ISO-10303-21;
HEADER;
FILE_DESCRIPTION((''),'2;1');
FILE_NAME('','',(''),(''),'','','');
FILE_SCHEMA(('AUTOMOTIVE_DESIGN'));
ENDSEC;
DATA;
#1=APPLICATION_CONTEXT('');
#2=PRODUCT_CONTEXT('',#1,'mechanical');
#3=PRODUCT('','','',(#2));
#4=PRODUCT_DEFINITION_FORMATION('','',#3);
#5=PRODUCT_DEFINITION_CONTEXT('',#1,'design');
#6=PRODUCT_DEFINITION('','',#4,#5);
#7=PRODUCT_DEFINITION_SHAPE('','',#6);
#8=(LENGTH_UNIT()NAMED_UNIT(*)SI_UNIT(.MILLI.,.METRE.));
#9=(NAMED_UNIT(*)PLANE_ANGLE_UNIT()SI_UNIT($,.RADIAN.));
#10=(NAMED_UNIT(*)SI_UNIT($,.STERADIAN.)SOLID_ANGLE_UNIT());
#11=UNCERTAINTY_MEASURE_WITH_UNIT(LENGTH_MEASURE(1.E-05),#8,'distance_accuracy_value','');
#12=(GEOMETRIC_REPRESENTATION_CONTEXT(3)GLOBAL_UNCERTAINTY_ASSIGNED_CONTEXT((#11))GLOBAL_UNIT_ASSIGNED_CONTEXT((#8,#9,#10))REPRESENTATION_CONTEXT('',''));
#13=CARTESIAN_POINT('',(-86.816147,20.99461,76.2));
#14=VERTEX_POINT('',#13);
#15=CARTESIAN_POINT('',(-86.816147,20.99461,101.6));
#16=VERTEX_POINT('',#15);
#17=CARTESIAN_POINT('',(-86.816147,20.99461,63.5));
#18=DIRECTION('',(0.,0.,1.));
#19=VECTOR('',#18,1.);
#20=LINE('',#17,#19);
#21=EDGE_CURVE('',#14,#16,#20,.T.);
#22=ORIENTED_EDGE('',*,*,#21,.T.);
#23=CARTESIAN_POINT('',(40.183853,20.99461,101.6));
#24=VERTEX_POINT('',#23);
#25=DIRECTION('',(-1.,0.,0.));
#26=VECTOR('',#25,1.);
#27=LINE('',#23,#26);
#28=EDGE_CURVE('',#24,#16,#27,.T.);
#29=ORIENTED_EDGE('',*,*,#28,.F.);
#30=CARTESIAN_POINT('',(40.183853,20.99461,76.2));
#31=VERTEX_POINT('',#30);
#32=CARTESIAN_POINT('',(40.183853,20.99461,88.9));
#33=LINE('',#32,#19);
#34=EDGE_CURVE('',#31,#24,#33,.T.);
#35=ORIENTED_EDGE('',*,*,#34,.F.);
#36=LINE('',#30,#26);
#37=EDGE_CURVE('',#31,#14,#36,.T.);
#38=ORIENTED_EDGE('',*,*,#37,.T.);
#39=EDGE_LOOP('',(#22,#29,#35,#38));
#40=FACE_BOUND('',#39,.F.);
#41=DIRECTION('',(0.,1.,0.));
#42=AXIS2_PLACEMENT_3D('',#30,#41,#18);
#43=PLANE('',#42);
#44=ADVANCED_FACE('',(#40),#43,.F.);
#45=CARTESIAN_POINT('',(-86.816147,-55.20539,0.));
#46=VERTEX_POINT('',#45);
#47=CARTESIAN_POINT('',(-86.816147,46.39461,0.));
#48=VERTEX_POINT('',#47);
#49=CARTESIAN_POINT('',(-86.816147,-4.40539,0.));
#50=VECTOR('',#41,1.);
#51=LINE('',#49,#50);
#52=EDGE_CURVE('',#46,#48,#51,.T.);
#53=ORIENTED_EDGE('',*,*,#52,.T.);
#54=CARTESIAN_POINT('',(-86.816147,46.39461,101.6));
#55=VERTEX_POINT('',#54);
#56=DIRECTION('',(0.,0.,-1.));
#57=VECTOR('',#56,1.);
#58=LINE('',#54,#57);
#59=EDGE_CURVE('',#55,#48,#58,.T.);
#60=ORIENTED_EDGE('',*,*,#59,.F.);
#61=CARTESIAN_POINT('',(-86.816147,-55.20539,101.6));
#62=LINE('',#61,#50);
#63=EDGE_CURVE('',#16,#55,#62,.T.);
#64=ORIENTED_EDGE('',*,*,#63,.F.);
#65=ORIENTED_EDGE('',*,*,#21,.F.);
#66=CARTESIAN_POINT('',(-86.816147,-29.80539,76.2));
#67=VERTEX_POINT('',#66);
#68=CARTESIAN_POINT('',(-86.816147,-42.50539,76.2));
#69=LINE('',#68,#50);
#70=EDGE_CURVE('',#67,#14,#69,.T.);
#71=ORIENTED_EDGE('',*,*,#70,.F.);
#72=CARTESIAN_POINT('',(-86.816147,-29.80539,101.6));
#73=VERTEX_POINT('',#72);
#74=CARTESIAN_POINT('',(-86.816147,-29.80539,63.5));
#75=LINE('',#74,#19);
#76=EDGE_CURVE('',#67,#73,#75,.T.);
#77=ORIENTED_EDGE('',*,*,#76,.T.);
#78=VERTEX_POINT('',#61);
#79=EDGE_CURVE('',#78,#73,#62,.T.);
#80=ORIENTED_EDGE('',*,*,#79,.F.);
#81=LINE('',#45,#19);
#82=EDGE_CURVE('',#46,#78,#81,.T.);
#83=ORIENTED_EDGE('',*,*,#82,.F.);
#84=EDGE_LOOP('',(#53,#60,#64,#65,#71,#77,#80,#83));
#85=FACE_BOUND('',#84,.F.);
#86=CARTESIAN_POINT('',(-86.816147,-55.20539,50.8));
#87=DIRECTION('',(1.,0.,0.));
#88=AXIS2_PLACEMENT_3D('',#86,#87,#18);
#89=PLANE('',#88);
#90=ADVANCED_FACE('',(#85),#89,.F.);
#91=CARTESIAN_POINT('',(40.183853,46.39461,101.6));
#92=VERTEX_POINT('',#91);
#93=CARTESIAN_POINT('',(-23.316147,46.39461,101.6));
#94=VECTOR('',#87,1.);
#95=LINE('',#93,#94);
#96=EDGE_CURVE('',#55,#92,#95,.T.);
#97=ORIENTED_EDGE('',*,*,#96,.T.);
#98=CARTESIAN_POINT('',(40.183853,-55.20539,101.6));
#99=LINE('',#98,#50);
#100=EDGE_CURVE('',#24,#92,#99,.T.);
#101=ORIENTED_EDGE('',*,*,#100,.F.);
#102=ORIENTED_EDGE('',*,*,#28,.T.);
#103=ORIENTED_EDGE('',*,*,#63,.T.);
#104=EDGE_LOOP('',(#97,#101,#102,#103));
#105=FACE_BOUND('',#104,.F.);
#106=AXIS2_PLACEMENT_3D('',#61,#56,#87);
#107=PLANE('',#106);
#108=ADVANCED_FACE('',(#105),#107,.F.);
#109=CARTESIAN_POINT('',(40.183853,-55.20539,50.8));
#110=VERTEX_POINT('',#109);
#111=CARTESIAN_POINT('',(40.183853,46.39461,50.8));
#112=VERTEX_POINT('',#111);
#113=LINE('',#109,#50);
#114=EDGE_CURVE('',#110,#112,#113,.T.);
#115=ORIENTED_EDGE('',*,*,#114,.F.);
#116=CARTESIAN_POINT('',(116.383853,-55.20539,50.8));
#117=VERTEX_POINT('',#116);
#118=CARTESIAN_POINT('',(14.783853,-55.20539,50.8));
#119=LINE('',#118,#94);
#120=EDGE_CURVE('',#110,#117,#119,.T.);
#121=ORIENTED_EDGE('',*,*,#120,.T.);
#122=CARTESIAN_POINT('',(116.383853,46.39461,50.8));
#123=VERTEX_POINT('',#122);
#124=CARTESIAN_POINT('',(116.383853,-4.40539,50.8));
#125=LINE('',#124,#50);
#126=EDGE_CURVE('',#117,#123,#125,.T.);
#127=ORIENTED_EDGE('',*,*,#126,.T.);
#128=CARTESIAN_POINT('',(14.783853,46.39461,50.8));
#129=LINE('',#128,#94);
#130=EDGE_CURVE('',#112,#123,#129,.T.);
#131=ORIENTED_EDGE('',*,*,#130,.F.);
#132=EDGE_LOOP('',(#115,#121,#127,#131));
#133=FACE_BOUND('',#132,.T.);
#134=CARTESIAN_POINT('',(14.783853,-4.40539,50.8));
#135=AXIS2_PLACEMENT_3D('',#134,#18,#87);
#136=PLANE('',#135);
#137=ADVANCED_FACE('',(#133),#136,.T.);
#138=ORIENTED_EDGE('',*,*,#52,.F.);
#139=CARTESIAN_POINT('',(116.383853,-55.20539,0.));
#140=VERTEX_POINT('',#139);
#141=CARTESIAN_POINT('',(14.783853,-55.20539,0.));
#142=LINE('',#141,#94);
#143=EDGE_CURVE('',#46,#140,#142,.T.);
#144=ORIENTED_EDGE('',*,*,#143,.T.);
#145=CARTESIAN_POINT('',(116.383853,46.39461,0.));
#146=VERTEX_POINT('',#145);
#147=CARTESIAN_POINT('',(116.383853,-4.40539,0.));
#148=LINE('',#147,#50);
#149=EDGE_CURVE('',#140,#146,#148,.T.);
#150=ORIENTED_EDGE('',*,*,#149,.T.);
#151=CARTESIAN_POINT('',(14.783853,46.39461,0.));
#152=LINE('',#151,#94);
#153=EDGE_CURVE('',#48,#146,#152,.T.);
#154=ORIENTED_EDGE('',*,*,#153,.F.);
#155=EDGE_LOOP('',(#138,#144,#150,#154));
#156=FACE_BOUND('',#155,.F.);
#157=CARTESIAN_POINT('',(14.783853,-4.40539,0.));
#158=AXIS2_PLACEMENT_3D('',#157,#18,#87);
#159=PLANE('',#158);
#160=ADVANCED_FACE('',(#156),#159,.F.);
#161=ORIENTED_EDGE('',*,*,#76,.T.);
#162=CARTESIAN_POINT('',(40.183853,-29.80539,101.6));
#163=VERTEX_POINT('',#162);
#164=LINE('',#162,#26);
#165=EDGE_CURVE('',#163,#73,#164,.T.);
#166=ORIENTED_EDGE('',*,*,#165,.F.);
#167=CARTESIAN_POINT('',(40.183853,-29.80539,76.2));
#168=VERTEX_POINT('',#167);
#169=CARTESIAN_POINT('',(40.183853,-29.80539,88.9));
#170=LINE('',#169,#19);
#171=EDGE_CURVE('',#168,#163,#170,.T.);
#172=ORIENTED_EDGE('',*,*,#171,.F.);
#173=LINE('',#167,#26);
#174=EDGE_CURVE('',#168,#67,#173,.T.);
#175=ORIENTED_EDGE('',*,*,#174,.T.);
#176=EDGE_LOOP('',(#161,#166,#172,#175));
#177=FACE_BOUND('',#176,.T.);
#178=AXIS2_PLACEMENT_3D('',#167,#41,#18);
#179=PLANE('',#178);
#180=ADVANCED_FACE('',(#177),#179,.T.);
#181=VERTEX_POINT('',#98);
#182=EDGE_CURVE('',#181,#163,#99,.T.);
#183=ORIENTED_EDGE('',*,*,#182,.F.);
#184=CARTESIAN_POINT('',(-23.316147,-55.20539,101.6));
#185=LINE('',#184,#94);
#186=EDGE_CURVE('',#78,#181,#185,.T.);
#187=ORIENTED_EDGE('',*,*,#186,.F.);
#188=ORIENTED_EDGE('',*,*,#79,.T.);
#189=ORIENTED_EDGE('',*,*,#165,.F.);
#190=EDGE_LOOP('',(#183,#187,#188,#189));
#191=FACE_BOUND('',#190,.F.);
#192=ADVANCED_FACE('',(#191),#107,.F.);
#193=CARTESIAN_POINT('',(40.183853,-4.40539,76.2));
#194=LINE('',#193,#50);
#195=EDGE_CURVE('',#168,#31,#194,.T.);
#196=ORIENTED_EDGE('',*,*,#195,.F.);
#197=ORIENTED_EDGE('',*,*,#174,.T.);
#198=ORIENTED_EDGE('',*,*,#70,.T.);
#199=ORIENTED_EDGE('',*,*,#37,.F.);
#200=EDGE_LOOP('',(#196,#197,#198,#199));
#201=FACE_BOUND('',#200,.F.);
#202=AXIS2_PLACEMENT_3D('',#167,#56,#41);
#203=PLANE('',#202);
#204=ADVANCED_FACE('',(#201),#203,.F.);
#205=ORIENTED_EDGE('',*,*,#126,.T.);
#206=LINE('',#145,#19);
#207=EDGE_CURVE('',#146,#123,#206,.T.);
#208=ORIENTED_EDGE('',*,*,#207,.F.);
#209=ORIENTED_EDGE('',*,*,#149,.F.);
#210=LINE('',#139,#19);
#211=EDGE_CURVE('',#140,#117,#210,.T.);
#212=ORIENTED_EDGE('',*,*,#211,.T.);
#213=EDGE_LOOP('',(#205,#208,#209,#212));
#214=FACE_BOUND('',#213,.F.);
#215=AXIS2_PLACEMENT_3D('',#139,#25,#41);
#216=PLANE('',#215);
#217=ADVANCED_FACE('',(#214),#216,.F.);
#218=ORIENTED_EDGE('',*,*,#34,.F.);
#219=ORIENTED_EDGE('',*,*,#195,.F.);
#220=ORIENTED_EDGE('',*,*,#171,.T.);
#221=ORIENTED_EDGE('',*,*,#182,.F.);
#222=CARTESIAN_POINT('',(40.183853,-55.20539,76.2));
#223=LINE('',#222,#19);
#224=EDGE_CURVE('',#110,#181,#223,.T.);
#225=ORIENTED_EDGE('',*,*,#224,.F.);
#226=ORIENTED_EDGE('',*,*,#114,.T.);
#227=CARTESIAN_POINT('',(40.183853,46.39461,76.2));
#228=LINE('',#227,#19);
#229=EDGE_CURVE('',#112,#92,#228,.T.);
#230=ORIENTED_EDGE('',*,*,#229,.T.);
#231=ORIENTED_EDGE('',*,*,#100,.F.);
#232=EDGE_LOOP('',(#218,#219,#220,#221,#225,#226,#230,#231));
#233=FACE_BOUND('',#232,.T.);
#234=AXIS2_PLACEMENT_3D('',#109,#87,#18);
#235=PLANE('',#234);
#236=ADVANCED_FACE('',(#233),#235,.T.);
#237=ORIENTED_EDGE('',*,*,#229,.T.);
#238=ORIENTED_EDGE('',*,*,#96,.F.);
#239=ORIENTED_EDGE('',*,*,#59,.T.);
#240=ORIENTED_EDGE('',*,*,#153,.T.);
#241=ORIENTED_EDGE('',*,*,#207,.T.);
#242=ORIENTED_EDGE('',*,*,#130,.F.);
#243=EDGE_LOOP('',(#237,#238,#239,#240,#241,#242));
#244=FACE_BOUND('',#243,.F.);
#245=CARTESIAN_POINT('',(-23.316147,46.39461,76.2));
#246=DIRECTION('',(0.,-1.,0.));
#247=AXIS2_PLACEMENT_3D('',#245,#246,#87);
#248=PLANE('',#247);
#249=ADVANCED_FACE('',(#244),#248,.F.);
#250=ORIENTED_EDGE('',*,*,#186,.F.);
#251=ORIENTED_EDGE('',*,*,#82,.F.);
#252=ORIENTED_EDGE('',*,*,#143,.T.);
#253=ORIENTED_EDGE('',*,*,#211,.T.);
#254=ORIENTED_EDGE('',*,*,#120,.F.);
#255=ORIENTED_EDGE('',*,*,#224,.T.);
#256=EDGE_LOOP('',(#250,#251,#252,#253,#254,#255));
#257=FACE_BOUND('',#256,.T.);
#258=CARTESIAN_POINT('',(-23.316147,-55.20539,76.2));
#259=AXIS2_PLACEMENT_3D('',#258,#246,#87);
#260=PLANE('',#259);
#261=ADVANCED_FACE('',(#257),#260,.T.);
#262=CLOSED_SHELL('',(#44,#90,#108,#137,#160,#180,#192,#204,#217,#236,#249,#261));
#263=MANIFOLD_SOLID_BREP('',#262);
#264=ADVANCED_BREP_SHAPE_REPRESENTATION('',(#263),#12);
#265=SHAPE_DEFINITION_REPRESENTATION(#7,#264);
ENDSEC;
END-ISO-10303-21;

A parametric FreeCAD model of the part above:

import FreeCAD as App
import Part
import Sketcher
Q = App.Units.Quantity


def add_polygon(sketch, points):
    """Adds a closed chain of lines whose ends are joined by coincident constraints."""
    first, n = sketch.GeometryCount, len(points)
    for a, b in zip(points, points[1:] + points[:1]):
        sketch.addGeometry(Part.LineSegment(App.Vector(*a, 0), App.Vector(*b, 0)), False)
    for i in range(n):
        sketch.addConstraint(Sketcher.Constraint("Coincident", first + i, 2, first + (i + 1) % n, 1))

doc = App.newDocument("Part")
params = doc.addObject("Spreadsheet::Sheet", "Params")
for row, (alias, value) in enumerate([
    ("sketch1_width", "8 in"),
    ("sketch1_height", "4 in"),
    ("pad1_length", "2 in"),
    ("sketch2_width", "5 in"),
    ("sketch2_height", "2 in"),
    ("pad2_length", "4 in"),
    ("sketch3_width", "2 in"),
    ("sketch3_height", "1 in"),
], start=1):
    params.set(f"A{row}", alias)
    params.set(f"B{row}", "=" + value)
    params.setAlias(f"B{row}", alias)

body = doc.addObject("PartDesign::Body", "Body")

# Sketch on XY plane
sketch1 = body.newObject("Sketcher::SketchObject", "Sketch")
sketch1.AttachmentSupport = (doc.getObject("XY_Plane"), [""])
sketch1.MapMode = "FlatFace"
add_polygon(sketch1, [(-86.816147, 46.39461), (-86.816147, -55.20539), (116.383853, -55.20539), (116.383853, 46.39461)])  # lines 0-3
sketch1.addConstraint([
    Sketcher.Constraint("Vertical", 0),
    Sketcher.Constraint("Horizontal", 1),
    Sketcher.Constraint("Vertical", 2),
    Sketcher.Constraint("Horizontal", 3),
    Sketcher.Constraint("DistanceX", 1, 1, 1, 2, Q("8 in")),
    Sketcher.Constraint("DistanceY", 0, 2, 0, 1, Q("4 in")),
    Sketcher.Constraint("DistanceY", 0, 2, -1, 1, Q("55.20539 mm")),
    Sketcher.Constraint("DistanceX", 0, 2, -1, 1, Q("86.816147 mm")),
])
sketch1.setExpression("Constraints[8]", "Params.sketch1_width")
sketch1.setExpression("Constraints[9]", "Params.sketch1_height")
pad1 = body.newObject("PartDesign::Pad", "Pad")
pad1.Profile = sketch1
pad1.setExpression("Length", "Params.pad1_length")

# Sketch on XZ plane
sketch2 = body.newObject("Sketcher::SketchObject", "Sketch001")
sketch2.AttachmentSupport = (doc.getObject("XZ_Plane"), [""])
sketch2.MapMode = "FlatFace"
sketch2.AttachmentOffset = App.Placement(App.Vector(0, 0, 55.20539), App.Rotation())
add_polygon(sketch2, [(-86.816147, 101.6), (-86.816147, 50.8), (40.183853, 50.8), (40.183853, 101.6)])  # lines 0-3
sketch2.addConstraint([
    Sketcher.Constraint("Vertical", 0),
    Sketcher.Constraint("Horizontal", 1),
    Sketcher.Constraint("Vertical", 2),
    Sketcher.Constraint("Horizontal", 3),
    Sketcher.Constraint("DistanceX", 1, 1, 1, 2, Q("5 in")),
    Sketcher.Constraint("DistanceY", 0, 2, 0, 1, Q("2 in")),
    Sketcher.Constraint("DistanceY", -1, 1, 0, 2, Q("2 in")),
    Sketcher.Constraint("DistanceX", 0, 2, -1, 1, Q("86.816147 mm")),
])
sketch2.setExpression("Constraints[8]", "Params.sketch2_width")
sketch2.setExpression("Constraints[9]", "Params.sketch2_height")
pad2 = body.newObject("PartDesign::Pad", "Pad001")
pad2.Profile = sketch2
pad2.setExpression("Length", "Params.pad2_length")
pad2.Reversed = True

# Sketch on YZ plane
sketch3 = body.newObject("Sketcher::SketchObject", "Sketch002")
sketch3.AttachmentSupport = (doc.getObject("YZ_Plane"), [""])
sketch3.MapMode = "FlatFace"
sketch3.AttachmentOffset = App.Placement(App.Vector(0, 0, 40.183853), App.Rotation())
add_polygon(sketch3, [(-29.80539, 101.6), (-29.80539, 76.2), (20.99461, 76.2), (20.99461, 101.6)])  # lines 0-3
sketch3.addConstraint([
    Sketcher.Constraint("Vertical", 0),
    Sketcher.Constraint("Horizontal", 1),
    Sketcher.Constraint("Vertical", 2),
    Sketcher.Constraint("Horizontal", 3),
    Sketcher.Constraint("DistanceX", 1, 1, 1, 2, Q("2 in")),
    Sketcher.Constraint("DistanceY", 0, 2, 0, 1, Q("1 in")),
    Sketcher.Constraint("DistanceY", -1, 1, 0, 2, Q("3 in")),
    Sketcher.Constraint("DistanceX", 0, 2, -1, 1, Q("29.80539 mm")),
])
sketch3.setExpression("Constraints[8]", "Params.sketch3_width")
sketch3.setExpression("Constraints[9]", "Params.sketch3_height")
pocket1 = body.newObject("PartDesign::Pocket", "Pocket")
pocket1.Profile = sketch3
pocket1.Type = "ThroughAll"

doc.recompute()
